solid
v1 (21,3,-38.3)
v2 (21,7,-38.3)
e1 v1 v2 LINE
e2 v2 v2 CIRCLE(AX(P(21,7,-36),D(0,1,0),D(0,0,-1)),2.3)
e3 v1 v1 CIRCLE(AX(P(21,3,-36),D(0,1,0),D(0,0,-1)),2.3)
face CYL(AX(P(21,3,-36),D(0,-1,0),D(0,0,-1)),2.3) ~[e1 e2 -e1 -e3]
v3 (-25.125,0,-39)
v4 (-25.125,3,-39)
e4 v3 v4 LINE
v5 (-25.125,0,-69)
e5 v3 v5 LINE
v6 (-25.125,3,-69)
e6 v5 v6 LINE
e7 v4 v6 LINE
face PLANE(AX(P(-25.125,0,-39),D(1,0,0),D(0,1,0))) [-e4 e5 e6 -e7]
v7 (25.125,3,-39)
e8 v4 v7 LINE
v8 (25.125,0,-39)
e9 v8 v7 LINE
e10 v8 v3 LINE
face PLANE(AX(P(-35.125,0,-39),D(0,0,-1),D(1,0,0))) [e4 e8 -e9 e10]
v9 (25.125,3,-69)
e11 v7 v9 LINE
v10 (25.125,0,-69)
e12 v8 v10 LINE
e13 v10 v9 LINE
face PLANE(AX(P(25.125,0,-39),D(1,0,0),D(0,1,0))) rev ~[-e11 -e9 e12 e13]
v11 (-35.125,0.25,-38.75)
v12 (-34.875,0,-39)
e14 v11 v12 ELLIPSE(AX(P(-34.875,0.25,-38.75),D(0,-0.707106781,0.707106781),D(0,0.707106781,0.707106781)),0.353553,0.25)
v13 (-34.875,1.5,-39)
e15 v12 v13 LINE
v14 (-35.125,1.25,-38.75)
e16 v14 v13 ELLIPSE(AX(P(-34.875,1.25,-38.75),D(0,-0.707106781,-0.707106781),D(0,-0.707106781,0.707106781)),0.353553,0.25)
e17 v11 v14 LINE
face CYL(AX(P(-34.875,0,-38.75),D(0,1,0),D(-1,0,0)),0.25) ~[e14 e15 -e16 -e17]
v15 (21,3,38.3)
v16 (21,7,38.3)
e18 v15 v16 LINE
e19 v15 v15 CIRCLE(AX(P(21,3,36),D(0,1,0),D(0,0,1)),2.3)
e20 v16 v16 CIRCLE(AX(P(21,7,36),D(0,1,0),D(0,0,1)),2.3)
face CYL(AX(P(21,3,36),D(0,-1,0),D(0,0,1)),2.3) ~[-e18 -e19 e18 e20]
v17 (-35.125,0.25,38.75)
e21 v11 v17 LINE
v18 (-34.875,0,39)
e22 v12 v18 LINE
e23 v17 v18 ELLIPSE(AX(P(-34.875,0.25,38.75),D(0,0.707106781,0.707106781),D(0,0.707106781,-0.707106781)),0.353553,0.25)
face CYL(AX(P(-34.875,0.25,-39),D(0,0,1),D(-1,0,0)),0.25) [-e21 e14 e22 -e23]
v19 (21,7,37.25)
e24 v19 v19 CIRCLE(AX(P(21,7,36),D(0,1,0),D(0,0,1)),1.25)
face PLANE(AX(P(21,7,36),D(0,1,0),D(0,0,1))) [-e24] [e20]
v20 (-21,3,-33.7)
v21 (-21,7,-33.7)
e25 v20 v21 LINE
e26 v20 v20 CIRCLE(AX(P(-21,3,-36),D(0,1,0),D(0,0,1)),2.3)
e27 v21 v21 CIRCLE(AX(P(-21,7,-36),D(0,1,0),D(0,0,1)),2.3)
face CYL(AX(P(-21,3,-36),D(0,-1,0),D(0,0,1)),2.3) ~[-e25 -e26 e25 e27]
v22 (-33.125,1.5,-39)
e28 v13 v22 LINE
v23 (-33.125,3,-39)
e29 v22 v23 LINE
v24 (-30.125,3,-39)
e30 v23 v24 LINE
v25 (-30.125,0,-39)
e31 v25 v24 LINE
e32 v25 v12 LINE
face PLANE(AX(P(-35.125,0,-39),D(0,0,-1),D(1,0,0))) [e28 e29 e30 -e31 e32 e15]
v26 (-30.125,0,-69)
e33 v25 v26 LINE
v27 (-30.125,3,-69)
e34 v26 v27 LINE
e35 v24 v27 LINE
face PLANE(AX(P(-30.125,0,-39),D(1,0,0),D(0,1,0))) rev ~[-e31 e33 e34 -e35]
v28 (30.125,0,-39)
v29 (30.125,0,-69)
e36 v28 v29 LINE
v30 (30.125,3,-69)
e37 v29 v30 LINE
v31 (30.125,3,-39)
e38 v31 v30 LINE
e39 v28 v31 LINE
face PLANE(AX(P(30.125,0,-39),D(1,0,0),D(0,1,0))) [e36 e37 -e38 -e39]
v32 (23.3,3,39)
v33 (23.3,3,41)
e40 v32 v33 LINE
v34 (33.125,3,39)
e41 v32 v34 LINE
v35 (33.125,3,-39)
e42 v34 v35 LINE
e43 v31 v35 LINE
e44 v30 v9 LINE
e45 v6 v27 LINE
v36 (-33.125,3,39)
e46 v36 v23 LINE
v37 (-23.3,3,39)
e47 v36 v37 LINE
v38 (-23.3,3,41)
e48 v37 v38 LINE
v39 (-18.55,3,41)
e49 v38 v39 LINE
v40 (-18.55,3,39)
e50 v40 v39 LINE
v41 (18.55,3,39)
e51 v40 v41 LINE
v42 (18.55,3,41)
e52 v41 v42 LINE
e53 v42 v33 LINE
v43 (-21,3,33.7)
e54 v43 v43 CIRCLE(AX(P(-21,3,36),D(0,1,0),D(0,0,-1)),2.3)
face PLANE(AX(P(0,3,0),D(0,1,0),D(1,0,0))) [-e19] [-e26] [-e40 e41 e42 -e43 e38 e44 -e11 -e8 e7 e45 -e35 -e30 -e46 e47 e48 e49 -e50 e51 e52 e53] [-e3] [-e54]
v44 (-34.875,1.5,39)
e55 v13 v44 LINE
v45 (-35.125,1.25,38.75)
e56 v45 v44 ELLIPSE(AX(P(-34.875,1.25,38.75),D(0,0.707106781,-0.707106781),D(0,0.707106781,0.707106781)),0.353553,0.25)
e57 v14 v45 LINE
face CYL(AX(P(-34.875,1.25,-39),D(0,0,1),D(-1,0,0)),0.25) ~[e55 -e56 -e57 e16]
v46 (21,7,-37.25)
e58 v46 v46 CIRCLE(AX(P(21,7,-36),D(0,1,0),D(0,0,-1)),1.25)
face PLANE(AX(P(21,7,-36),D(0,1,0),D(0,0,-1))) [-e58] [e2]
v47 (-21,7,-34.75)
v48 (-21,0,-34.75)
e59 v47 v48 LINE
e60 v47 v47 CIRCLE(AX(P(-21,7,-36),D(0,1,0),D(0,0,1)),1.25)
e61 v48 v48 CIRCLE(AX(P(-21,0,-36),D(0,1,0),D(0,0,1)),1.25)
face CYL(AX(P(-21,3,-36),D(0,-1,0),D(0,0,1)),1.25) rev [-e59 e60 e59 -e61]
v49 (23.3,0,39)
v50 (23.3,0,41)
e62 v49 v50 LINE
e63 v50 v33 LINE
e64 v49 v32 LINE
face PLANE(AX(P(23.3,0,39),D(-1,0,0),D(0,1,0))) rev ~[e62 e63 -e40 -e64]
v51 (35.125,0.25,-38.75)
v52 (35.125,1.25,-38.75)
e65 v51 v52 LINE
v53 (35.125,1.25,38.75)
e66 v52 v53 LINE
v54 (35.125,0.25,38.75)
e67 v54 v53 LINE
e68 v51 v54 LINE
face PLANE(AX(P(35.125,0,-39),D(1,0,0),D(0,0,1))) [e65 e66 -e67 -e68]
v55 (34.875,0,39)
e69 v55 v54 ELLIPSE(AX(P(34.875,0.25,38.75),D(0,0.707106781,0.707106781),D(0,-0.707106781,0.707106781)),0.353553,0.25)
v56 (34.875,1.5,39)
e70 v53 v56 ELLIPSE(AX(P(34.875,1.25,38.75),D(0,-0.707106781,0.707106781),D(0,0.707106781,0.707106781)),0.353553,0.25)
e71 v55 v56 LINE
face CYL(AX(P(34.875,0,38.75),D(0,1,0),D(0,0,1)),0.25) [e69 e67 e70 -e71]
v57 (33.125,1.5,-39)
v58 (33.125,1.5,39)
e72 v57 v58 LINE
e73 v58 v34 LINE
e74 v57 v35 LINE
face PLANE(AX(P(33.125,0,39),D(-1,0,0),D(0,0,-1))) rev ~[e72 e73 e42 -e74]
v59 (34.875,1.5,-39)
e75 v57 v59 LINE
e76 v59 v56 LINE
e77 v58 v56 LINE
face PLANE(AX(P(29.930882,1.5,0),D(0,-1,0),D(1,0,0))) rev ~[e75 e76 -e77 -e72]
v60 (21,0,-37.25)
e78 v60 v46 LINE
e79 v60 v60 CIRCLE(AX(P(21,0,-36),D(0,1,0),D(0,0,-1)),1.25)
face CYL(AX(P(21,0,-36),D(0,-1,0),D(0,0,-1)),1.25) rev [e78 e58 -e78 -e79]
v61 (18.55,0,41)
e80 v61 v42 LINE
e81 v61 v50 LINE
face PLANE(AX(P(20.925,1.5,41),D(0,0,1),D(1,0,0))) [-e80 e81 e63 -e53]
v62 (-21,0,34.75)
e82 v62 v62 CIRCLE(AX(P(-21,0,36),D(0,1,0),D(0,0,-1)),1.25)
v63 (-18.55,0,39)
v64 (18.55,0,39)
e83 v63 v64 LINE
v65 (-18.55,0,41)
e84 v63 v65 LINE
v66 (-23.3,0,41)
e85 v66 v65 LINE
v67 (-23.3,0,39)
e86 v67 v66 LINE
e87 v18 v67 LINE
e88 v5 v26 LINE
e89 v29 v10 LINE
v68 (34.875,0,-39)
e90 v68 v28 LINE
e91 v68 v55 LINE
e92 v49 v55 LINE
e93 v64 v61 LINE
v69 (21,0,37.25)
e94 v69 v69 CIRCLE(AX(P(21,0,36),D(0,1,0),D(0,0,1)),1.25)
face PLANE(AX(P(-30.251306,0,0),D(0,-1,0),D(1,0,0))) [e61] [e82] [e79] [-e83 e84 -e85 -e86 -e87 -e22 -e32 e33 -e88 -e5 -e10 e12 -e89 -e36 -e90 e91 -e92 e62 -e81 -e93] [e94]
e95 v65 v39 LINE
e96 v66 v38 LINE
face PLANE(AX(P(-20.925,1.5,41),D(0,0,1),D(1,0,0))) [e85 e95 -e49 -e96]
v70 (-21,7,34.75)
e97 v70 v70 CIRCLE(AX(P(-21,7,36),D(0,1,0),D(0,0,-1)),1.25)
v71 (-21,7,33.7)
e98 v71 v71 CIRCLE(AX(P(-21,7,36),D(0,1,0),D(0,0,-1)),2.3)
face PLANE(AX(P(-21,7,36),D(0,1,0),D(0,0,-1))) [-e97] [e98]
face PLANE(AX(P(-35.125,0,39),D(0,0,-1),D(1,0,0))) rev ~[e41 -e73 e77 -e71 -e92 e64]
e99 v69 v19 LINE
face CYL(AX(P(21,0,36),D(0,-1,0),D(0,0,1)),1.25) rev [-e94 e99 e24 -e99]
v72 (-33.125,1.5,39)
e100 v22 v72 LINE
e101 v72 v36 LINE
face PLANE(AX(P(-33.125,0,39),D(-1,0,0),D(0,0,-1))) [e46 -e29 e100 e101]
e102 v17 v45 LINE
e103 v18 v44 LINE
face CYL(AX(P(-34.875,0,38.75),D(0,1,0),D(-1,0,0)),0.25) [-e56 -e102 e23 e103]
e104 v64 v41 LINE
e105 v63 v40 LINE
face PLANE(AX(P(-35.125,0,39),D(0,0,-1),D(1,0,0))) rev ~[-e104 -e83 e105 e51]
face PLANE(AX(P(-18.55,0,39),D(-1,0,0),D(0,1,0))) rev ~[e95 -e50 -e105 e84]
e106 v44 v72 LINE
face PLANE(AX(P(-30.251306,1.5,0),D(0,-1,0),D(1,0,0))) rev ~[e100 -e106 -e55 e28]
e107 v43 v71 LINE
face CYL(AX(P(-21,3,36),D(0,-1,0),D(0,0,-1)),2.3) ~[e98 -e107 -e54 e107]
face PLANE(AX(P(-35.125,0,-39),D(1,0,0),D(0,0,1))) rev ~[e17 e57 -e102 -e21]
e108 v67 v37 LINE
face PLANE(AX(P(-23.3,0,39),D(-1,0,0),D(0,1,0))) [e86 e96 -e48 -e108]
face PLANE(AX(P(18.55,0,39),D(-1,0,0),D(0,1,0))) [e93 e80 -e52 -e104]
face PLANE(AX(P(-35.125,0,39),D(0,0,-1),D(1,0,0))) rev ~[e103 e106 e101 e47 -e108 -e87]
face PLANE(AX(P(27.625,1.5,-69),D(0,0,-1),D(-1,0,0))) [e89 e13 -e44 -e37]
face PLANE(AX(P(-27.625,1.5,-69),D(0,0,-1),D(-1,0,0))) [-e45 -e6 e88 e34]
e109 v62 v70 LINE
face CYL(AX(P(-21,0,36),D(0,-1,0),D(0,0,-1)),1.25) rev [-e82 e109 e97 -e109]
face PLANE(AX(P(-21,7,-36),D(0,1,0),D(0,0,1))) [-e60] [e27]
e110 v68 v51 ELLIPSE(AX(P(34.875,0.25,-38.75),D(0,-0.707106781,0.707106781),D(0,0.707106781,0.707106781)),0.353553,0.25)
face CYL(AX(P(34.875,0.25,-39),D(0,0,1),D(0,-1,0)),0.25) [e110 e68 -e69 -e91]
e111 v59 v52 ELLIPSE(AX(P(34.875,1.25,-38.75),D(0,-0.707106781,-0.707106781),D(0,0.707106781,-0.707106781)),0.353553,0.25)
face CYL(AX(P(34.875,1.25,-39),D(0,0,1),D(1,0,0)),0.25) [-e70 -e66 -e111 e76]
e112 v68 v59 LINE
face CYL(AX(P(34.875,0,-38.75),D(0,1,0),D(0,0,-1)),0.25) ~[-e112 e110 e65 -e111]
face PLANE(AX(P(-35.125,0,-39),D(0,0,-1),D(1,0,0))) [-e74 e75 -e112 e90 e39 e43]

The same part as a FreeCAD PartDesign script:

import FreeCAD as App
import Part
import Sketcher

V = App.Vector


def edges_at(feature, points):
    """Names of the edges that pass closest to the given points."""
    edges = feature.Shape.Edges
    near = lambda p: min(range(len(edges)), key=lambda i: edges[i].distToShape(Part.Vertex(*p))[0])
    return sorted({f"Edge{near(p) + 1}" for p in points})


def add_polygon(sketch, points):
    """Adds a closed chain of lines whose ends are joined by coincident constraints."""
    first, n = sketch.GeometryCount, len(points)
    for a, b in zip(points, points[1:] + points[:1]):
        sketch.addGeometry(Part.LineSegment(App.Vector(*a, 0), App.Vector(*b, 0)), False)
    for i in range(n):
        sketch.addConstraint(Sketcher.Constraint("Coincident", first + i, 2, first + (i + 1) % n, 1))

doc = App.newDocument("Part")
body = doc.addObject("PartDesign::Body", "Body")

# Sketch on XZ plane
sketch1 = body.newObject("Sketcher::SketchObject", "Sketch")
sketch1.AttachmentSupport = (doc.getObject("XZ_Plane"), [""])
sketch1.MapMode = "FlatFace"
add_polygon(sketch1, [(-33.1, -39), (-33.1, 39), (33.1, 39), (33.1, -39)])  # lines 0-3
sketch1.addGeometry(Part.Circle(V(-21, 36, 0), V(0, 0, 1), 1.2), False)  # 4
sketch1.addGeometry(Part.Circle(V(21, 36, 0), V(0, 0, 1), 1.2), False)  # 5
sketch1.addGeometry(Part.Circle(V(-21, -36, 0), V(0, 0, 1), 1.2), False)  # 6
sketch1.addGeometry(Part.Circle(V(21, -36, 0), V(0, 0, 1), 1.2), False)  # 7
sketch1.addConstraint(Sketcher.Constraint("Vertical", 0))
sketch1.addConstraint(Sketcher.Constraint("Horizontal", 1))
sketch1.addConstraint(Sketcher.Constraint("Vertical", 2))
sketch1.addConstraint(Sketcher.Constraint("Horizontal", 3))
sketch1.addConstraint(Sketcher.Constraint("Equal", 4, 5))
sketch1.addConstraint(Sketcher.Constraint("Equal", 5, 6))
sketch1.addConstraint(Sketcher.Constraint("Equal", 6, 7))
sketch1.addConstraint(Sketcher.Constraint("Symmetric", 5, 3, 6, 3, -1, 1))
sketch1.addConstraint(Sketcher.Constraint("Symmetric", 4, 3, 7, 3, -1, 1))
sketch1.addConstraint(Sketcher.Constraint("Symmetric", 0, 2, 2, 2, -1, 1))
sketch1.addConstraint(Sketcher.Constraint("Symmetric", 4, 3, 5, 3, -2))
sketch1.addConstraint(Sketcher.Constraint("Diameter", 4, 2.5))
sketch1.addConstraint(Sketcher.Constraint("DistanceY", 0, 1, 0, 2, 78.0))
sketch1.addConstraint(Sketcher.Constraint("DistanceX", 4, 3, -1, 1, 21.0))
sketch1.addConstraint(Sketcher.Constraint("DistanceY", -1, 1, 4, 3, 36.0))
sketch1.addConstraint(Sketcher.Constraint("DistanceX", 1, 1, 1, 2, 66.25))
pad1 = body.newObject("PartDesign::Pad", "Pad")
pad1.Profile = sketch1
pad1.Length = 3
pad1.Reversed = True

# Sketch on XZ plane
sketch2 = body.newObject("Sketcher::SketchObject", "Sketch001")
sketch2.AttachmentSupport = (doc.getObject("XZ_Plane"), [""])
sketch2.MapMode = "FlatFace"
add_polygon(sketch2, [(-35, 39), (-35, -39), (-25, -39), (-25, 39)])  # lines 0-3
add_polygon(sketch2, [(25, 39), (25, -39), (35, -39), (35, 39)])  # lines 4-7
sketch2.addConstraint(Sketcher.Constraint("Vertical", 0))
sketch2.addConstraint(Sketcher.Constraint("Horizontal", 1))
sketch2.addConstraint(Sketcher.Constraint("Vertical", 2))
sketch2.addConstraint(Sketcher.Constraint("Horizontal", 3))
sketch2.addConstraint(Sketcher.Constraint("Vertical", 4))
sketch2.addConstraint(Sketcher.Constraint("Horizontal", 5))
sketch2.addConstraint(Sketcher.Constraint("Vertical", 6))
sketch2.addConstraint(Sketcher.Constraint("Horizontal", 7))
sketch2.addConstraint(Sketcher.Constraint("Symmetric", 3, 2, 5, 2, -1, 1))
sketch2.addConstraint(Sketcher.Constraint("Horizontal", 1, 2, 4, 2))
sketch2.addConstraint(Sketcher.Constraint("Horizontal", 3, 2, 6, 2))
sketch2.addConstraint(Sketcher.Constraint("DistanceY", 0, 2, 0, 1, 78.0))
sketch2.addConstraint(Sketcher.Constraint("DistanceX", 0, 2, 5, 2, 70.25))
sketch2.addConstraint(Sketcher.Constraint("DistanceX", 1, 1, 1, 2, 9.747388))
sketch2.addConstraint(Sketcher.Constraint("DistanceX", 5, 1, 5, 2, 10.388237))
pad2 = body.newObject("PartDesign::Pad", "Pad001")
pad2.Profile = sketch2
pad2.Length = 1.5
pad2.Reversed = True
doc.recompute()

fillet = body.newObject("PartDesign::Fillet", "Fillet")
fillet.Base = (pad2, edges_at(pad2, [
    (-35.125, 0.75, 39),
    (-35.125, 0, 0),
    (-35.125, 1.5, 0),
    (-35.125, 0.75, -39),
]))
fillet.Radius = 0.25
doc.recompute()

fillet2 = body.newObject("PartDesign::Fillet", "Fillet001")
fillet2.Base = (fillet, edges_at(fillet, [
    (35.125, 0.75, -39),
    (35.125, 0, 0),
    (35.125, 1.5, 0),
    (35.125, 0.75, 39),
]))
fillet2.Radius = 0.25

# Sketch on XZ plane
sketch3 = body.newObject("Sketcher::SketchObject", "Sketch002")
sketch3.AttachmentSupport = (doc.getObject("XZ_Plane"), [""])
sketch3.MapMode = "FlatFace"
sketch3.AttachmentOffset = App.Placement(V(0, 0, -3), App.Rotation())
sketch3.addGeometry(Part.Circle(V(-21, -36, 0), V(0, 0, 1), 2.3), False)
sketch3.addGeometry(Part.Circle(V(-21, -36, 0), V(0, 0, 1), 1.2), False)
sketch3.addGeometry(Part.Circle(V(21, -36, 0), V(0, 0, 1), 2.3), False)
sketch3.addGeometry(Part.Circle(V(21, -36, 0), V(0, 0, 1), 1.2), False)
sketch3.addGeometry(Part.Circle(V(21, 36, 0), V(0, 0, 1), 2.3), False)
sketch3.addGeometry(Part.Circle(V(21, 36, 0), V(0, 0, 1), 1.2), False)
sketch3.addGeometry(Part.Circle(V(-21, 36, 0), V(0, 0, 1), 2.3), False)
sketch3.addGeometry(Part.Circle(V(-21, 36, 0), V(0, 0, 1), 1.2), False)
sketch3.addConstraint(Sketcher.Constraint("Coincident", 1, 3, 0, 3))
sketch3.addConstraint(Sketcher.Constraint("Coincident", 3, 3, 2, 3))
sketch3.addConstraint(Sketcher.Constraint("Coincident", 5, 3, 4, 3))
sketch3.addConstraint(Sketcher.Constraint("Coincident", 7, 3, 6, 3))
sketch3.addConstraint(Sketcher.Constraint("Equal", 0, 2))
sketch3.addConstraint(Sketcher.Constraint("Equal", 1, 3))
sketch3.addConstraint(Sketcher.Constraint("Equal", 2, 4))
sketch3.addConstraint(Sketcher.Constraint("Equal", 3, 5))
sketch3.addConstraint(Sketcher.Constraint("Equal", 4, 6))
sketch3.addConstraint(Sketcher.Constraint("Equal", 5, 7))
sketch3.addConstraint(Sketcher.Constraint("Symmetric", 0, 3, 4, 3, -1, 1))
sketch3.addConstraint(Sketcher.Constraint("Symmetric", 2, 3, 6, 3, -1, 1))
sketch3.addConstraint(Sketcher.Constraint("Symmetric", 0, 3, 2, 3, -2))
sketch3.addConstraint(Sketcher.Constraint("Diameter", 0, 4.6))
sketch3.addConstraint(Sketcher.Constraint("Diameter", 1, 2.5))
sketch3.addConstraint(Sketcher.Constraint("DistanceX", 0, 3, -1, 1, 21.0))
sketch3.addConstraint(Sketcher.Constraint("DistanceY", 0, 3, -1, 1, 36.0))
pad3 = body.newObject("PartDesign::Pad", "Pad002")
pad3.Profile = sketch3
pad3.Length = 4
pad3.Reversed = True

# Sketch on XY plane
sketch4 = body.newObject("Sketcher::SketchObject", "Sketch003")
sketch4.AttachmentSupport = (doc.getObject("XY_Plane"), [""])
sketch4.MapMode = "FlatFace"
sketch4.AttachmentOffset = App.Placement(V(0, 0, 39), App.Rotation())
add_polygon(sketch4, [(-23.3, 3), (-23.3, 0), (-18.6, 0), (-18.6, 3)])  # lines 0-3
add_polygon(sketch4, [(18.6, 3), (18.6, 0), (23.3, 0), (23.3, 3)])  # lines 4-7
sketch4.addConstraint(Sketcher.Constraint("Vertical", 0))
sketch4.addConstraint(Sketcher.Constraint("Horizontal", 1))
sketch4.addConstraint(Sketcher.Constraint("Vertical", 2))
sketch4.addConstraint(Sketcher.Constraint("Horizontal", 3))
sketch4.addConstraint(Sketcher.Constraint("Vertical", 4))
sketch4.addConstraint(Sketcher.Constraint("Horizontal", 5))
sketch4.addConstraint(Sketcher.Constraint("Vertical", 6))
sketch4.addConstraint(Sketcher.Constraint("Horizontal", 7))
sketch4.addConstraint(Sketcher.Constraint("Symmetric", 1, 2, 4, 2, -1, 1))
sketch4.addConstraint(Sketcher.Constraint("Symmetric", 0, 2, 5, 2, -2))
sketch4.addConstraint(Sketcher.Constraint("Horizontal", 3, 2, 6, 2))
sketch4.addConstraint(Sketcher.Constraint("DistanceY", 0, 2, 0, 1, 3.0))
sketch4.addConstraint(Sketcher.Constraint("DistanceX", 1, 1, 1, 2, 4.75))
sketch4.addConstraint(Sketcher.Constraint("DistanceX", 0, 2, -1, 1, 23.3))
pad4 = body.newObject("PartDesign::Pad", "Pad003")
pad4.Profile = sketch4
pad4.Length = 2

# Sketch on XY plane
sketch5 = body.newObject("Sketcher::SketchObject", "Sketch004")
sketch5.AttachmentSupport = (doc.getObject("XY_Plane"), [""])
sketch5.MapMode = "FlatFace"
sketch5.AttachmentOffset = App.Placement(V(0, 0, -39), App.Rotation())
add_polygon(sketch5, [(30.1, 3), (30.1, 0), (25.1, 0), (25.1, 3)])  # lines 0-3
add_polygon(sketch5, [(-25.1, 3), (-25.1, 0), (-30.1, 0), (-30.1, 3)])  # lines 4-7
sketch5.addConstraint(Sketcher.Constraint("Vertical", 0))
sketch5.addConstraint(Sketcher.Constraint("Horizontal", 1))
sketch5.addConstraint(Sketcher.Constraint("Vertical", 2))
sketch5.addConstraint(Sketcher.Constraint("Horizontal", 3))
sketch5.addConstraint(Sketcher.Constraint("Vertical", 4))
sketch5.addConstraint(Sketcher.Constraint("Horizontal", 5))
sketch5.addConstraint(Sketcher.Constraint("Vertical", 6))
sketch5.addConstraint(Sketcher.Constraint("Horizontal", 7))
sketch5.addConstraint(Sketcher.Constraint("Symmetric", 1, 2, 4, 2, -1, 1))
sketch5.addConstraint(Sketcher.Constraint("Symmetric", 0, 2, 5, 2, -2))
sketch5.addConstraint(Sketcher.Constraint("Horizontal", 3, 2, 6, 2))
sketch5.addConstraint(Sketcher.Constraint("DistanceX", 1, 2, 1, 1, 5.0))
sketch5.addConstraint(Sketcher.Constraint("DistanceY", 0, 2, 0, 1, 3.0))
sketch5.addConstraint(Sketcher.Constraint("DistanceX", 4, 2, 1, 2, 50.25))
pad5 = body.newObject("PartDesign::Pad", "Pad004")
pad5.Profile = sketch5
pad5.Length = 30
pad5.Reversed = True

doc.recompute()
